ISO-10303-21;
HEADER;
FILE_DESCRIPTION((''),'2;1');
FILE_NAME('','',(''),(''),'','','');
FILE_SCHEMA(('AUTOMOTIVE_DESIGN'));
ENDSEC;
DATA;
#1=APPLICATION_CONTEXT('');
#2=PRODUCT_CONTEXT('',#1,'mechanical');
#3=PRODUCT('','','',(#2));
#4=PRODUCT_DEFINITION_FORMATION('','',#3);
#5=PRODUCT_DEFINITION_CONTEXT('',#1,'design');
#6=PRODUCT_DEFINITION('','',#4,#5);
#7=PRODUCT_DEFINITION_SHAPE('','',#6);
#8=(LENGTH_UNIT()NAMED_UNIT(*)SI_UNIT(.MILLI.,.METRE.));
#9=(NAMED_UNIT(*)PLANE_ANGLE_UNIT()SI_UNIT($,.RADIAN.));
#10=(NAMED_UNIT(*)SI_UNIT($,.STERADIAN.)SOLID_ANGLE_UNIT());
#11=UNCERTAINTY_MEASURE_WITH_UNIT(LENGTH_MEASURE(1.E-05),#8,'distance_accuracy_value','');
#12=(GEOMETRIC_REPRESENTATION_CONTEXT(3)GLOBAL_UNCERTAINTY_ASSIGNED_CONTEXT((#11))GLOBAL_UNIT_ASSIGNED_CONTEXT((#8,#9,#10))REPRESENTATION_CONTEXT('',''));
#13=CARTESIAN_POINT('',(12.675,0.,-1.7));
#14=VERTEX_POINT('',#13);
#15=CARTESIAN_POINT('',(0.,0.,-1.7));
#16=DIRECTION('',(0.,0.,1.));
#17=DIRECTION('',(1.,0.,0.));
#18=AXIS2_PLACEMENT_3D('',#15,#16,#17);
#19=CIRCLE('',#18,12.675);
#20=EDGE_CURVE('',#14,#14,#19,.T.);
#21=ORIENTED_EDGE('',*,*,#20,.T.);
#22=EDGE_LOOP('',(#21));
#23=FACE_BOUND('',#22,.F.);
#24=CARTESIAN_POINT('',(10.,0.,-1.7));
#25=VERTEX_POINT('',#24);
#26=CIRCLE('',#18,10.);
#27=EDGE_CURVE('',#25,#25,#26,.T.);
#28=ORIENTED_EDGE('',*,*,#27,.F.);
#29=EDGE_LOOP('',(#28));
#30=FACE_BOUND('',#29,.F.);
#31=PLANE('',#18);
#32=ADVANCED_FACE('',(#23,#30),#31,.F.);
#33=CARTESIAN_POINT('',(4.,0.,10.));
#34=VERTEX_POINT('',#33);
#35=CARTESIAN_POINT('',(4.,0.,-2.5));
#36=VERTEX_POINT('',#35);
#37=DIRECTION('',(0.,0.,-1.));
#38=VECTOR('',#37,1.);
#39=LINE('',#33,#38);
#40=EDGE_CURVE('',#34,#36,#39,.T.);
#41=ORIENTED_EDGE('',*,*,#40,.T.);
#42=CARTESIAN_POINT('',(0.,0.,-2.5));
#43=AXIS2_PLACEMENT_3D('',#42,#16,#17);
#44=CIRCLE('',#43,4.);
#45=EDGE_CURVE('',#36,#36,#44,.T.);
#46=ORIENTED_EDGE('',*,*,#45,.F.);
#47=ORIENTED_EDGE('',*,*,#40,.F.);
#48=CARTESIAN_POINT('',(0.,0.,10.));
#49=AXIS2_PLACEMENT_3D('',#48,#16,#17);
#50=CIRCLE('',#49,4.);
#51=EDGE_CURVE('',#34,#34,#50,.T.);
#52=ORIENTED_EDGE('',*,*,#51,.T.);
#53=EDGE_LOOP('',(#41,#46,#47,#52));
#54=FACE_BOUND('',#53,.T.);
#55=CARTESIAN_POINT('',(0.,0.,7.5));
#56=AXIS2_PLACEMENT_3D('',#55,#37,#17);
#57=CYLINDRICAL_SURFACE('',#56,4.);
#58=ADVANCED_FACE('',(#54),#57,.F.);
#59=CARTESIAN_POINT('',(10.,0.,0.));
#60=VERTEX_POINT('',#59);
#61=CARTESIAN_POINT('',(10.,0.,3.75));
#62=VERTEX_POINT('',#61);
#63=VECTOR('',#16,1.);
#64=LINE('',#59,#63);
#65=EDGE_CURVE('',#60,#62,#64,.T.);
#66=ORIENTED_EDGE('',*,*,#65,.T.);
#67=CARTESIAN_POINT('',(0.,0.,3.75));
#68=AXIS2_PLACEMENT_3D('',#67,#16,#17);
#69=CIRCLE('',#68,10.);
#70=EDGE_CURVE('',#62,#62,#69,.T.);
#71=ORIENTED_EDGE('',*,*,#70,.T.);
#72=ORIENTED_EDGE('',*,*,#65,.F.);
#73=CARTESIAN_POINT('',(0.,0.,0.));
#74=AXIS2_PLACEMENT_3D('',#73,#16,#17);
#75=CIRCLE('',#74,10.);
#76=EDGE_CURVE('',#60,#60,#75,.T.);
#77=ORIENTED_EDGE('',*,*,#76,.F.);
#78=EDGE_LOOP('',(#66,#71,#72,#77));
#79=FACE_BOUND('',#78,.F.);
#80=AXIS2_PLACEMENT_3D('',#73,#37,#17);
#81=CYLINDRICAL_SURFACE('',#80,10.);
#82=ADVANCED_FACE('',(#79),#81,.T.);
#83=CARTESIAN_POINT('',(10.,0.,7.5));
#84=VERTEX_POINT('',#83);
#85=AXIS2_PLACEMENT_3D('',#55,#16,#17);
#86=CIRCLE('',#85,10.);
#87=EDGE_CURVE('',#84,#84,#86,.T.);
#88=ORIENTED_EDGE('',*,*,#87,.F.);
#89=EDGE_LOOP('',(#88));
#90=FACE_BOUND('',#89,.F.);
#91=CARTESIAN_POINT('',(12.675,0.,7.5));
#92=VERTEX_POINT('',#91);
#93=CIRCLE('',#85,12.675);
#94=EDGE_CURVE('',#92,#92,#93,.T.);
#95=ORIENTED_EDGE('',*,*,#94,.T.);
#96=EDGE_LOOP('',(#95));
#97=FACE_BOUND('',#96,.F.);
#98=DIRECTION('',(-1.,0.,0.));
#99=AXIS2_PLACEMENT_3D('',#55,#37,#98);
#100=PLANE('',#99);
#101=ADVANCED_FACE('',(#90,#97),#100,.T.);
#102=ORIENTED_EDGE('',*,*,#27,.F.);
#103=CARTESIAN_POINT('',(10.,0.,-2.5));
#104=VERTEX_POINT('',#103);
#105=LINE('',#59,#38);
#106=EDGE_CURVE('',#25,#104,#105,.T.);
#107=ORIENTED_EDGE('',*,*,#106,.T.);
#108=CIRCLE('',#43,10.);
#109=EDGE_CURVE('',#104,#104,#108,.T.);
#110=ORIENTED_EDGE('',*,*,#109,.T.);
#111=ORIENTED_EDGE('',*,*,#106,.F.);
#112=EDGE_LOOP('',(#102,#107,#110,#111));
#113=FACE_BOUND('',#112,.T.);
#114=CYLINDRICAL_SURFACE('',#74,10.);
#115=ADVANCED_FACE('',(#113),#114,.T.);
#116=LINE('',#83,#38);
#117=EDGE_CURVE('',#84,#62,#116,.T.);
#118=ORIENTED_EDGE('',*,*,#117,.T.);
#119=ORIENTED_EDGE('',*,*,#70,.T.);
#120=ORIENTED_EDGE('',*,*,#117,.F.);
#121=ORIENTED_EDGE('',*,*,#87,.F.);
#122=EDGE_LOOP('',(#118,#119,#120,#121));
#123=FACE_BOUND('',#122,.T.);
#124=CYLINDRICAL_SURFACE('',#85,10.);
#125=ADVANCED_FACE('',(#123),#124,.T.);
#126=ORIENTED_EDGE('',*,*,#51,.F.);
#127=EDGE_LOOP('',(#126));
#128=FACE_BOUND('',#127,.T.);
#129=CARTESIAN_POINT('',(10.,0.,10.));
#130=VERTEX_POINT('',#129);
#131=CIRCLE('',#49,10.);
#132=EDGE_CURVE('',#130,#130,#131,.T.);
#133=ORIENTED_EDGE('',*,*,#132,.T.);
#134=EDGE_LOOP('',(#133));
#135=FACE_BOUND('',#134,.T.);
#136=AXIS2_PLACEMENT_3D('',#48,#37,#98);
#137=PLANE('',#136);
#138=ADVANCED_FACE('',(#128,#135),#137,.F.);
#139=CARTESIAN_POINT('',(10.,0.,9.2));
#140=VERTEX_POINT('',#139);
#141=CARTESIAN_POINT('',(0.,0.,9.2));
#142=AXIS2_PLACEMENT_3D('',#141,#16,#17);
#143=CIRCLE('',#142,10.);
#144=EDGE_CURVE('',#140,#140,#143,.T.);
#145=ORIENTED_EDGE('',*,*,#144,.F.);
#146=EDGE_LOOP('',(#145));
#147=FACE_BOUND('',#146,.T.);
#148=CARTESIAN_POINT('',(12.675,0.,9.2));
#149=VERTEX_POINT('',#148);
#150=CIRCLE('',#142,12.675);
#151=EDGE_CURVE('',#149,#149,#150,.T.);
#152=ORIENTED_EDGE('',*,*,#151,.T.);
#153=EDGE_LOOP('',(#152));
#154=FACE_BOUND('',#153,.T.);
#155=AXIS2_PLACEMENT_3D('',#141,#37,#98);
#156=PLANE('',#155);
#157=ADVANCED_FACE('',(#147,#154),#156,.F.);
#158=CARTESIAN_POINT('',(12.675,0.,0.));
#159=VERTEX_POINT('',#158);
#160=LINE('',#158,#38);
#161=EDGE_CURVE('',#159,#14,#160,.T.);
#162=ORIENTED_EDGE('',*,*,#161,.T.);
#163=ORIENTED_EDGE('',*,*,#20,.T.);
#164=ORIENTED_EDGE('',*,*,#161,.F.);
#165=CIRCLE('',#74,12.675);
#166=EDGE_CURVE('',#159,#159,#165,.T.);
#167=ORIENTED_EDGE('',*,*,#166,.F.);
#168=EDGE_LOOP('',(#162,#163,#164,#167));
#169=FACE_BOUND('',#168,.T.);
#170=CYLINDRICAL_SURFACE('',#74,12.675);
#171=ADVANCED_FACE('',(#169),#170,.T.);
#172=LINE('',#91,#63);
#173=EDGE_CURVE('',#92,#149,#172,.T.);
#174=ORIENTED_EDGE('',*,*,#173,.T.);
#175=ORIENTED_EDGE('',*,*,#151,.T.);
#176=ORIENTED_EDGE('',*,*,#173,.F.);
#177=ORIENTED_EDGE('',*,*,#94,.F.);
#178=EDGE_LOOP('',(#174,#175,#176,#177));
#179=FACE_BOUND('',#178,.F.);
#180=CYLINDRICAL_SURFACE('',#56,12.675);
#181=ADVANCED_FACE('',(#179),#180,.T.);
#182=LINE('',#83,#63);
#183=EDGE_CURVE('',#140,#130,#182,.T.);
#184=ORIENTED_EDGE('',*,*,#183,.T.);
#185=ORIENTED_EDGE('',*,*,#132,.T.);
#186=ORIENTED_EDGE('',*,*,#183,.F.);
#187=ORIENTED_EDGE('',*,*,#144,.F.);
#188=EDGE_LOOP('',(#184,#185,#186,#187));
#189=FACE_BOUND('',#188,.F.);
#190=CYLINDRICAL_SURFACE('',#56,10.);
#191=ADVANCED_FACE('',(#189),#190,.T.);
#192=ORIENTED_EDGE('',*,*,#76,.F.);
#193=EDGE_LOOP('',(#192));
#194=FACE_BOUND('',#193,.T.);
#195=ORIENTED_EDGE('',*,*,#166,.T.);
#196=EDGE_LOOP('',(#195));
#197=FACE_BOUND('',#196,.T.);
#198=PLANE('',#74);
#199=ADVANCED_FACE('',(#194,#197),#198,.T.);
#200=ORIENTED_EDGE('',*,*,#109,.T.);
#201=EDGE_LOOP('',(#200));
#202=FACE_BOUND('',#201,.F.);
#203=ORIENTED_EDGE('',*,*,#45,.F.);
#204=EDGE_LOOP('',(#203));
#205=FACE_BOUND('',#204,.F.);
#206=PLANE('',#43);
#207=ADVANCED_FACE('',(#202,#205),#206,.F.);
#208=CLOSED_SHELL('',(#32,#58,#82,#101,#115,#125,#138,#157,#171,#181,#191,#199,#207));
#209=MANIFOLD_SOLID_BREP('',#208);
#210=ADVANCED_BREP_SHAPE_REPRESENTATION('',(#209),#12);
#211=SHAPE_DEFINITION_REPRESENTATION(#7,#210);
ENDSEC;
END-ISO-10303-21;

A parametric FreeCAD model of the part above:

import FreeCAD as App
import Part
import Sketcher

V = App.Vector
Q = App.Units.Quantity

doc = App.newDocument("Part")
params = doc.addObject("Spreadsheet::Sheet", "Params")
for row, (alias, value) in enumerate([
    ("sketch1_diameter", "20 mm"),
    ("sketch1_diameter2", "8 mm"),
    ("pad1_length", "3.75 mm"),
    ("sketch2_diameter", "20 mm"),
    ("sketch2_diameter2", "25.35 mm"),
    ("pad2_length", "1.7 mm"),
    ("sketch3_diameter", "20 mm"),
    ("sketch3_diameter2", "8 mm"),
    ("pad3_length", "2.5 mm"),
], start=1):
    params.set(f"A{row}", alias)
    params.set(f"B{row}", "=" + value)
    params.setAlias(f"B{row}", alias)

body = doc.addObject("PartDesign::Body", "Body")
body.AllowCompound = True

sketch1 = body.newObject("Sketcher::SketchObject", "Sketch")
sketch1.AttachmentSupport = (doc.getObject("XY_Plane"), [""])
sketch1.MapMode = "FlatFace"
sketch1.addGeometry([
    Part.Circle(V(0, 0, 0), V(0, 0, 1), 10),
    Part.Circle(V(0, 0, 0), V(0, 0, 1), 4),
], False)
sketch1.addConstraint([
    Sketcher.Constraint("Coincident", 0, 3, -1, 1),
    Sketcher.Constraint("Coincident", 1, 3, -1, 1),
    Sketcher.Constraint("Diameter", 0, Q("20 mm")),
    Sketcher.Constraint("Diameter", 1, Q("8 mm")),
])
sketch1.setExpression("Constraints[2]", "Params.sketch1_diameter")
sketch1.setExpression("Constraints[3]", "Params.sketch1_diameter2")
pad1 = body.newObject("PartDesign::Pad", "Pad")
pad1.Profile = sketch1
pad1.setExpression("Length", "Params.pad1_length")

sketch2 = body.newObject("Sketcher::SketchObject", "Sketch001")
sketch2.AttachmentSupport = (doc.getObject("XY_Plane"), [""])
sketch2.MapMode = "FlatFace"
sketch2.addGeometry([
    Part.Circle(V(0, 0, 0), V(0, 0, 1), 13),
    Part.Circle(V(0, 0, 0), V(0, 0, 1), 10),
], False)
sketch2.addConstraint([
    Sketcher.Constraint("Coincident", 0, 3, -1, 1),
    Sketcher.Constraint("Coincident", 1, 3, -1, 1),
    Sketcher.Constraint("Diameter", 1, Q("20 mm")),
    Sketcher.Constraint("Diameter", 0, Q("25.35 mm")),
])
sketch2.setExpression("Constraints[2]", "Params.sketch2_diameter")
sketch2.setExpression("Constraints[3]", "Params.sketch2_diameter2")
pad2 = body.newObject("PartDesign::Pad", "Pad001")
pad2.Profile = sketch2
pad2.setExpression("Length", "Params.pad2_length")
pad2.Reversed = True

sketch3 = body.newObject("Sketcher::SketchObject", "Sketch002")
sketch3.AttachmentSupport = (doc.getObject("XY_Plane"), [""])
sketch3.MapMode = "FlatFace"
sketch3.addGeometry([
    Part.Circle(V(0, 0, 0), V(0, 0, 1), 10),
    Part.Circle(V(0, 0, 0), V(0, 0, 1), 4),
], False)
sketch3.addConstraint([
    Sketcher.Constraint("Coincident", 0, 3, -1, 1),
    Sketcher.Constraint("Coincident", 1, 3, -1, 1),
    Sketcher.Constraint("Diameter", 0, Q("20 mm")),
    Sketcher.Constraint("Diameter", 1, Q("8 mm")),
])
sketch3.setExpression("Constraints[2]", "Params.sketch3_diameter")
sketch3.setExpression("Constraints[3]", "Params.sketch3_diameter2")
pad3 = body.newObject("PartDesign::Pad", "Pad002")
pad3.Profile = sketch3
pad3.setExpression("Length", "Params.pad3_length")
pad3.Reversed = True
doc.recompute()

datumplane = body.newObject("PartDesign::Plane", "DatumPlane")
datumplane.AttachmentSupport = (doc.getObject("XY_Plane"), [""])
datumplane.MapMode = "FlatFace"
datumplane.AttachmentOffset = App.Placement(V(0, 0, 3.75), App.Rotation())
mirrored = body.newObject("PartDesign::Mirrored", "Mirrored")
mirrored.Originals = [pad1, pad2, pad3]
mirrored.MirrorPlane = (datumplane, [""])
body.Tip = mirrored

doc.recompute()
